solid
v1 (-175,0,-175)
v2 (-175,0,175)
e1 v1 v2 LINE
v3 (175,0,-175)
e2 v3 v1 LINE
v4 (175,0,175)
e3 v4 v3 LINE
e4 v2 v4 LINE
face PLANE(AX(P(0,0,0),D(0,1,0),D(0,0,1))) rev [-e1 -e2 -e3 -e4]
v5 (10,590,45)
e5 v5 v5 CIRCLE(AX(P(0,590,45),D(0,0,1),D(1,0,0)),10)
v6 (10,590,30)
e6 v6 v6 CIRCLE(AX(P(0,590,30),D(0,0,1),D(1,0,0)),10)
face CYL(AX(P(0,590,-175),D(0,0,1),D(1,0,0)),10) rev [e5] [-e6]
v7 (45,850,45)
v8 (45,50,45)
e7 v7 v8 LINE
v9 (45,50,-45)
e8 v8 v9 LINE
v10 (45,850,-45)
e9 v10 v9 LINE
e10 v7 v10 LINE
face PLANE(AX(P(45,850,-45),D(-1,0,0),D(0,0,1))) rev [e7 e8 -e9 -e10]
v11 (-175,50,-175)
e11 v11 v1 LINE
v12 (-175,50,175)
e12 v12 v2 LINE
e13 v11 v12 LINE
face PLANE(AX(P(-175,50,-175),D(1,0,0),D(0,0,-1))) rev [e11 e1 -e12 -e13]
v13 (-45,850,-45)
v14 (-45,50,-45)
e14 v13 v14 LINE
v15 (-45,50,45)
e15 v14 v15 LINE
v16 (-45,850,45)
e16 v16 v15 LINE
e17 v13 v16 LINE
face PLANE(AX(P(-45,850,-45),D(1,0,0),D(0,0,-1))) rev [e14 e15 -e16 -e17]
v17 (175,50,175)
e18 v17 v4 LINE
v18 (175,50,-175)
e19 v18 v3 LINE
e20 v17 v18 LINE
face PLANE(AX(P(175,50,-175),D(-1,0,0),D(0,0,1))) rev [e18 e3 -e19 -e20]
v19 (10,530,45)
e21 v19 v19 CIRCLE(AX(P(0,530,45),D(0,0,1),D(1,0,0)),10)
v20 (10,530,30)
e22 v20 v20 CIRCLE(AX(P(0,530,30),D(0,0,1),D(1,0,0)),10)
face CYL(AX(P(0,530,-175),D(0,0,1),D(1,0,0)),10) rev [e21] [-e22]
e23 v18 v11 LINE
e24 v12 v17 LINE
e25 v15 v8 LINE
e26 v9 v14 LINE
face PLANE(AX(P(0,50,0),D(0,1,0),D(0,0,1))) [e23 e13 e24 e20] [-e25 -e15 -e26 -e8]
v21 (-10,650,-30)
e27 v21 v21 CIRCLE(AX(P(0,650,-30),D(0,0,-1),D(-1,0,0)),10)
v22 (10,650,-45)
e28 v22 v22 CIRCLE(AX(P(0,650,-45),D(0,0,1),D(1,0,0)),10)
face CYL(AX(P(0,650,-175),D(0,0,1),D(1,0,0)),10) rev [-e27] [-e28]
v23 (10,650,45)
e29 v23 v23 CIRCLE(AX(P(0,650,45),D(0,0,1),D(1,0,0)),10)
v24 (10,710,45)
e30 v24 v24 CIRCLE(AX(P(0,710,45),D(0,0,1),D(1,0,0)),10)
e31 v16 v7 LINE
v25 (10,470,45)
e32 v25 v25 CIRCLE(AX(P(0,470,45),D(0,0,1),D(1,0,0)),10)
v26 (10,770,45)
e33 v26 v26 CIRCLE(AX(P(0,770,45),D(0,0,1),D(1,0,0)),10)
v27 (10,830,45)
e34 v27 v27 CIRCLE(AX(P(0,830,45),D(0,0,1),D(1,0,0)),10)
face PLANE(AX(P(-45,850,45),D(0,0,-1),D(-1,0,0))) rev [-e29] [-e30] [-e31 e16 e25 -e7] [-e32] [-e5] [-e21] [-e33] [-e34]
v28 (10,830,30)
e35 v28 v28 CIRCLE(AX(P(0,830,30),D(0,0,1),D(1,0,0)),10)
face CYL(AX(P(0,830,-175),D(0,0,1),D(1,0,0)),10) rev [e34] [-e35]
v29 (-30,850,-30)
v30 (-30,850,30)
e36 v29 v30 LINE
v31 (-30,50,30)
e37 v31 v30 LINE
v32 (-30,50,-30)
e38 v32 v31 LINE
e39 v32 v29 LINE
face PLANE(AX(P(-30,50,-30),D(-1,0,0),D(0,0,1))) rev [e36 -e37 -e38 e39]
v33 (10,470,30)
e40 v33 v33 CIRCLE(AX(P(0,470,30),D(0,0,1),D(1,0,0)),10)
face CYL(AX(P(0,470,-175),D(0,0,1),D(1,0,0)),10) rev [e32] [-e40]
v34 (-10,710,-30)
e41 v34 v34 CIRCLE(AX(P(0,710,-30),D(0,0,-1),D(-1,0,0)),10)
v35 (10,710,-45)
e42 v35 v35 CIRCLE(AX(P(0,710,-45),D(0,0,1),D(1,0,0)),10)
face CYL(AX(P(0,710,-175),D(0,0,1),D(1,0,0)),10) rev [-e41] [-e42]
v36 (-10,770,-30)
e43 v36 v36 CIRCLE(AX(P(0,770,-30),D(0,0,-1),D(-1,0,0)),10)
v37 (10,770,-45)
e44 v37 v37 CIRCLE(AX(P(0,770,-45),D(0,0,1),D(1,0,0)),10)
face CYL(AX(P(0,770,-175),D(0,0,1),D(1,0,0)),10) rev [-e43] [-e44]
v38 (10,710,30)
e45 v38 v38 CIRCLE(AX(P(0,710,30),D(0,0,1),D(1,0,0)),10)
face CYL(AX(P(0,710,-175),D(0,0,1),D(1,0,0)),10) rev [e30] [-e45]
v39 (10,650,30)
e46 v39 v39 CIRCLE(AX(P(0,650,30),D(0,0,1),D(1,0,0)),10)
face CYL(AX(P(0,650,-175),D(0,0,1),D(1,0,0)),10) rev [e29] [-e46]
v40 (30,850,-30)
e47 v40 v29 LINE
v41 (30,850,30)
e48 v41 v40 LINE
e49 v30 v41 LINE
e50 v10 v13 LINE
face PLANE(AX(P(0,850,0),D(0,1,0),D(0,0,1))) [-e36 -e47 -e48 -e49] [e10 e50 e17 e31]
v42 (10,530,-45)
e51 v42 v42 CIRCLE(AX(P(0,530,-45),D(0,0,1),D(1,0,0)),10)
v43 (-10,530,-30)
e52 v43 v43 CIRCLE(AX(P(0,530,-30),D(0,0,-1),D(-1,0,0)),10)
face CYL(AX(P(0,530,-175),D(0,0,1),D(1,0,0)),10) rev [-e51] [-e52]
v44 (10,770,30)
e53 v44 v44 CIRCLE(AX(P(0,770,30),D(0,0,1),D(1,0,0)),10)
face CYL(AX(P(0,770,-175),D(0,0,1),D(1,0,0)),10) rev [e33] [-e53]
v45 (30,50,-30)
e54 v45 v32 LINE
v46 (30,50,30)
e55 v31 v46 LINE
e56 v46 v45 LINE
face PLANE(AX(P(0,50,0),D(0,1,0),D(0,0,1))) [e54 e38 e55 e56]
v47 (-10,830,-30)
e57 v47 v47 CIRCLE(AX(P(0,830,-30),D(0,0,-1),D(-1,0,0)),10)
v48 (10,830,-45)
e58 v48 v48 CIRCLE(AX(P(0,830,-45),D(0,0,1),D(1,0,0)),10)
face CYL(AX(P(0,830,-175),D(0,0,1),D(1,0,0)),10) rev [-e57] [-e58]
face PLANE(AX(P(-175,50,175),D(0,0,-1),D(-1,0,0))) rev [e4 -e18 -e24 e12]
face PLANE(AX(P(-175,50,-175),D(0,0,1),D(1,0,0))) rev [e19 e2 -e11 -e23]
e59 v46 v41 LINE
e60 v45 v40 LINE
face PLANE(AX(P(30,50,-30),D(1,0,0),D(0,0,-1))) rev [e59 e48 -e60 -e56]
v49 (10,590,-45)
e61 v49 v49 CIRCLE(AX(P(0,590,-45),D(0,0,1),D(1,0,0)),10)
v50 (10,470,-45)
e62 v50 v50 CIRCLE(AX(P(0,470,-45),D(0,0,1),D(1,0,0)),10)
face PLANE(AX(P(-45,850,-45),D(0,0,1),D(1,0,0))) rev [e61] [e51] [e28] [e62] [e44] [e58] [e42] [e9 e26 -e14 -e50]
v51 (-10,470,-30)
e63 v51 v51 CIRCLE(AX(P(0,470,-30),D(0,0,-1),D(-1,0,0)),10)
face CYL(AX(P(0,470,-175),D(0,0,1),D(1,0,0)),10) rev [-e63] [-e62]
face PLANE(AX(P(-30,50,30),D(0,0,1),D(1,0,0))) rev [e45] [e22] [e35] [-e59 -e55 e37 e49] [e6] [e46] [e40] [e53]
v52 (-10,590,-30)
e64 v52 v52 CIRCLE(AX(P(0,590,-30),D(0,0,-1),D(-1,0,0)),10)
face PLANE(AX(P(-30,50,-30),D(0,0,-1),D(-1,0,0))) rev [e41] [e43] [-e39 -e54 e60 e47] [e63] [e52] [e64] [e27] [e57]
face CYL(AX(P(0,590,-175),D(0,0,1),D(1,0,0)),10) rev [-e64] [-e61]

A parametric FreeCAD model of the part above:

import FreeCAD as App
import Part
import Sketcher

V = App.Vector

doc = App.newDocument("Part")
params = doc.addObject("Spreadsheet::Sheet", "Params")
for row, (alias, value) in enumerate([
    ("sketch1_width", "350 mm"),
    ("pad1_length", "50 mm"),
    ("sketch2_width", "90 mm"),
    ("pad2_length", "800 mm"),
    ("sketch3_width", "60 mm"),
    ("pocket1_length", "800 mm"),
    ("sketch4_diameter", "20 mm"),
], start=1):
    params.set(f"A{row}", alias)
    params.set(f"B{row}", "=" + value)
    params.setAlias(f"B{row}", alias)

body = doc.addObject("PartDesign::Body", "Body")

# Sketch on XZ plane
sketch1 = body.newObject("Sketcher::SketchObject", "Sketch")
sketch1.AttachmentSupport = (doc.getObject("XZ_Plane"), [""])
sketch1.MapMode = "FlatFace"
sketch1.addGeometry([
    Part.LineSegment(V(-175, -175, 0), V(-175, 175, 0)),
    Part.LineSegment(V(-175, 175, 0), V(175, 175, 0)),
    Part.LineSegment(V(175, 175, 0), V(175, -175, 0)),
    Part.LineSegment(V(175, -175, 0), V(-175, -175, 0)),
], False)
sketch1.addConstraint([
    Sketcher.Constraint("Coincident", 0, 2, 1, 1),
    Sketcher.Constraint("Coincident", 1, 2, 2, 1),
    Sketcher.Constraint("Coincident", 2, 2, 3, 1),
    Sketcher.Constraint("Coincident", 3, 2, 0, 1),
    Sketcher.Constraint("Vertical", 0),
    Sketcher.Constraint("Horizontal", 1),
    Sketcher.Constraint("Vertical", 2),
    Sketcher.Constraint("Horizontal", 3),
    Sketcher.Constraint("Symmetric", 0, 2, 2, 2, -1, 1),
    Sketcher.Constraint("Equal", 3, 0),
    Sketcher.Constraint("DistanceX", 1, 1, 1, 2, 350.0),
])
sketch1.setExpression("Constraints[10]", "Params.sketch1_width")
pad1 = body.newObject("PartDesign::Pad", "Pad")
pad1.Profile = sketch1
pad1.setExpression("Length", "Params.pad1_length")
pad1.Reversed = True

# Sketch on XZ plane
sketch2 = body.newObject("Sketcher::SketchObject", "Sketch001")
sketch2.AttachmentSupport = (doc.getObject("XZ_Plane"), [""])
sketch2.MapMode = "FlatFace"
sketch2.AttachmentOffset = App.Placement(V(0, 0, -50), App.Rotation())
sketch2.addGeometry([
    Part.LineSegment(V(-45, -45, 0), V(-45, 45, 0)),
    Part.LineSegment(V(-45, 45, 0), V(45, 45, 0)),
    Part.LineSegment(V(45, 45, 0), V(45, -45, 0)),
    Part.LineSegment(V(45, -45, 0), V(-45, -45, 0)),
], False)
sketch2.addConstraint([
    Sketcher.Constraint("Coincident", 0, 2, 1, 1),
    Sketcher.Constraint("Coincident", 1, 2, 2, 1),
    Sketcher.Constraint("Coincident", 2, 2, 3, 1),
    Sketcher.Constraint("Coincident", 3, 2, 0, 1),
    Sketcher.Constraint("Vertical", 0),
    Sketcher.Constraint("Horizontal", 1),
    Sketcher.Constraint("Vertical", 2),
    Sketcher.Constraint("Horizontal", 3),
    Sketcher.Constraint("Symmetric", 0, 2, 2, 2, -1, 1),
    Sketcher.Constraint("Equal", 3, 0),
    Sketcher.Constraint("DistanceX", 1, 1, 1, 2, 90.0),
])
sketch2.setExpression("Constraints[10]", "Params.sketch2_width")
pad2 = body.newObject("PartDesign::Pad", "Pad001")
pad2.Profile = sketch2
pad2.setExpression("Length", "Params.pad2_length")
pad2.Reversed = True

# Sketch on XZ plane
sketch3 = body.newObject("Sketcher::SketchObject", "Sketch002")
sketch3.AttachmentSupport = (doc.getObject("XZ_Plane"), [""])
sketch3.MapMode = "FlatFace"
sketch3.AttachmentOffset = App.Placement(V(0, 0, -850), App.Rotation())
sketch3.addGeometry([
    Part.LineSegment(V(-30, -30, 0), V(-30, 30, 0)),
    Part.LineSegment(V(-30, 30, 0), V(30, 30, 0)),
    Part.LineSegment(V(30, 30, 0), V(30, -30, 0)),
    Part.LineSegment(V(30, -30, 0), V(-30, -30, 0)),
], False)
sketch3.addConstraint([
    Sketcher.Constraint("Coincident", 0, 2, 1, 1),
    Sketcher.Constraint("Coincident", 1, 2, 2, 1),
    Sketcher.Constraint("Coincident", 2, 2, 3, 1),
    Sketcher.Constraint("Coincident", 3, 2, 0, 1),
    Sketcher.Constraint("Vertical", 0),
    Sketcher.Constraint("Horizontal", 1),
    Sketcher.Constraint("Vertical", 2),
    Sketcher.Constraint("Horizontal", 3),
    Sketcher.Constraint("Symmetric", 0, 2, 2, 2, -1, 1),
    Sketcher.Constraint("Equal", 3, 0),
    Sketcher.Constraint("DistanceX", 1, 1, 1, 2, 60.0),
])
sketch3.setExpression("Constraints[10]", "Params.sketch3_width")
pocket1 = body.newObject("PartDesign::Pocket", "Pocket")
pocket1.Profile = sketch3
pocket1.setExpression("Length", "Params.pocket1_length")
pocket1.Reversed = True

# Sketch on XY plane
sketch4 = body.newObject("Sketcher::SketchObject", "Sketch003")
sketch4.AttachmentSupport = (doc.getObject("XY_Plane"), [""])
sketch4.MapMode = "FlatFace"
sketch4.AttachmentOffset = App.Placement(V(0, 0, 45), App.Rotation())
sketch4.addGeometry([
    Part.Circle(V(0, 830, 0), V(0, 0, 1), 10),  # 0
    Part.Circle(V(0, 770, 0), V(0, 0, 1), 10),  # 1
    Part.Circle(V(0, 710, 0), V(0, 0, 1), 10),  # 2
    Part.Circle(V(0, 650, 0), V(0, 0, 1), 10),  # 3
    Part.Circle(V(0, 590, 0), V(0, 0, 1), 10),  # 4
    Part.Circle(V(0, 530, 0), V(0, 0, 1), 10),  # 5
    Part.Circle(V(0, 470, 0), V(0, 0, 1), 10),  # 6
], False)
sketch4.addConstraint([
    Sketcher.Constraint("Equal", 0, 1),
    Sketcher.Constraint("Equal", 1, 2),
    Sketcher.Constraint("Equal", 2, 3),
    Sketcher.Constraint("Equal", 3, 4),
    Sketcher.Constraint("Equal", 4, 5),
    Sketcher.Constraint("Equal", 5, 6),
    Sketcher.Constraint("PointOnObject", 0, 3, -2),
    Sketcher.Constraint("PointOnObject", 1, 3, -2),
    Sketcher.Constraint("PointOnObject", 2, 3, -2),
    Sketcher.Constraint("PointOnObject", 3, 3, -2),
    Sketcher.Constraint("PointOnObject", 4, 3, -2),
    Sketcher.Constraint("PointOnObject", 5, 3, -2),
    Sketcher.Constraint("PointOnObject", 6, 3, -2),
    Sketcher.Constraint("Diameter", 0, 20.0),
    Sketcher.Constraint("DistanceY", -1, 1, 0, 3, 830.0),
    Sketcher.Constraint("DistanceY", -1, 1, 1, 3, 770.0),
    Sketcher.Constraint("DistanceY", -1, 1, 2, 3, 710.0),
    Sketcher.Constraint("DistanceY", -1, 1, 3, 3, 650.0),
    Sketcher.Constraint("DistanceY", -1, 1, 4, 3, 590.0),
    Sketcher.Constraint("DistanceY", -1, 1, 5, 3, 530.0),
    Sketcher.Constraint("DistanceY", -1, 1, 6, 3, 470.0),
])
sketch4.setExpression("Constraints[13]", "Params.sketch4_diameter")
pocket2 = body.newObject("PartDesign::Pocket", "Pocket001")
pocket2.Profile = sketch4
pocket2.Type = "ThroughAll"

doc.recompute()
